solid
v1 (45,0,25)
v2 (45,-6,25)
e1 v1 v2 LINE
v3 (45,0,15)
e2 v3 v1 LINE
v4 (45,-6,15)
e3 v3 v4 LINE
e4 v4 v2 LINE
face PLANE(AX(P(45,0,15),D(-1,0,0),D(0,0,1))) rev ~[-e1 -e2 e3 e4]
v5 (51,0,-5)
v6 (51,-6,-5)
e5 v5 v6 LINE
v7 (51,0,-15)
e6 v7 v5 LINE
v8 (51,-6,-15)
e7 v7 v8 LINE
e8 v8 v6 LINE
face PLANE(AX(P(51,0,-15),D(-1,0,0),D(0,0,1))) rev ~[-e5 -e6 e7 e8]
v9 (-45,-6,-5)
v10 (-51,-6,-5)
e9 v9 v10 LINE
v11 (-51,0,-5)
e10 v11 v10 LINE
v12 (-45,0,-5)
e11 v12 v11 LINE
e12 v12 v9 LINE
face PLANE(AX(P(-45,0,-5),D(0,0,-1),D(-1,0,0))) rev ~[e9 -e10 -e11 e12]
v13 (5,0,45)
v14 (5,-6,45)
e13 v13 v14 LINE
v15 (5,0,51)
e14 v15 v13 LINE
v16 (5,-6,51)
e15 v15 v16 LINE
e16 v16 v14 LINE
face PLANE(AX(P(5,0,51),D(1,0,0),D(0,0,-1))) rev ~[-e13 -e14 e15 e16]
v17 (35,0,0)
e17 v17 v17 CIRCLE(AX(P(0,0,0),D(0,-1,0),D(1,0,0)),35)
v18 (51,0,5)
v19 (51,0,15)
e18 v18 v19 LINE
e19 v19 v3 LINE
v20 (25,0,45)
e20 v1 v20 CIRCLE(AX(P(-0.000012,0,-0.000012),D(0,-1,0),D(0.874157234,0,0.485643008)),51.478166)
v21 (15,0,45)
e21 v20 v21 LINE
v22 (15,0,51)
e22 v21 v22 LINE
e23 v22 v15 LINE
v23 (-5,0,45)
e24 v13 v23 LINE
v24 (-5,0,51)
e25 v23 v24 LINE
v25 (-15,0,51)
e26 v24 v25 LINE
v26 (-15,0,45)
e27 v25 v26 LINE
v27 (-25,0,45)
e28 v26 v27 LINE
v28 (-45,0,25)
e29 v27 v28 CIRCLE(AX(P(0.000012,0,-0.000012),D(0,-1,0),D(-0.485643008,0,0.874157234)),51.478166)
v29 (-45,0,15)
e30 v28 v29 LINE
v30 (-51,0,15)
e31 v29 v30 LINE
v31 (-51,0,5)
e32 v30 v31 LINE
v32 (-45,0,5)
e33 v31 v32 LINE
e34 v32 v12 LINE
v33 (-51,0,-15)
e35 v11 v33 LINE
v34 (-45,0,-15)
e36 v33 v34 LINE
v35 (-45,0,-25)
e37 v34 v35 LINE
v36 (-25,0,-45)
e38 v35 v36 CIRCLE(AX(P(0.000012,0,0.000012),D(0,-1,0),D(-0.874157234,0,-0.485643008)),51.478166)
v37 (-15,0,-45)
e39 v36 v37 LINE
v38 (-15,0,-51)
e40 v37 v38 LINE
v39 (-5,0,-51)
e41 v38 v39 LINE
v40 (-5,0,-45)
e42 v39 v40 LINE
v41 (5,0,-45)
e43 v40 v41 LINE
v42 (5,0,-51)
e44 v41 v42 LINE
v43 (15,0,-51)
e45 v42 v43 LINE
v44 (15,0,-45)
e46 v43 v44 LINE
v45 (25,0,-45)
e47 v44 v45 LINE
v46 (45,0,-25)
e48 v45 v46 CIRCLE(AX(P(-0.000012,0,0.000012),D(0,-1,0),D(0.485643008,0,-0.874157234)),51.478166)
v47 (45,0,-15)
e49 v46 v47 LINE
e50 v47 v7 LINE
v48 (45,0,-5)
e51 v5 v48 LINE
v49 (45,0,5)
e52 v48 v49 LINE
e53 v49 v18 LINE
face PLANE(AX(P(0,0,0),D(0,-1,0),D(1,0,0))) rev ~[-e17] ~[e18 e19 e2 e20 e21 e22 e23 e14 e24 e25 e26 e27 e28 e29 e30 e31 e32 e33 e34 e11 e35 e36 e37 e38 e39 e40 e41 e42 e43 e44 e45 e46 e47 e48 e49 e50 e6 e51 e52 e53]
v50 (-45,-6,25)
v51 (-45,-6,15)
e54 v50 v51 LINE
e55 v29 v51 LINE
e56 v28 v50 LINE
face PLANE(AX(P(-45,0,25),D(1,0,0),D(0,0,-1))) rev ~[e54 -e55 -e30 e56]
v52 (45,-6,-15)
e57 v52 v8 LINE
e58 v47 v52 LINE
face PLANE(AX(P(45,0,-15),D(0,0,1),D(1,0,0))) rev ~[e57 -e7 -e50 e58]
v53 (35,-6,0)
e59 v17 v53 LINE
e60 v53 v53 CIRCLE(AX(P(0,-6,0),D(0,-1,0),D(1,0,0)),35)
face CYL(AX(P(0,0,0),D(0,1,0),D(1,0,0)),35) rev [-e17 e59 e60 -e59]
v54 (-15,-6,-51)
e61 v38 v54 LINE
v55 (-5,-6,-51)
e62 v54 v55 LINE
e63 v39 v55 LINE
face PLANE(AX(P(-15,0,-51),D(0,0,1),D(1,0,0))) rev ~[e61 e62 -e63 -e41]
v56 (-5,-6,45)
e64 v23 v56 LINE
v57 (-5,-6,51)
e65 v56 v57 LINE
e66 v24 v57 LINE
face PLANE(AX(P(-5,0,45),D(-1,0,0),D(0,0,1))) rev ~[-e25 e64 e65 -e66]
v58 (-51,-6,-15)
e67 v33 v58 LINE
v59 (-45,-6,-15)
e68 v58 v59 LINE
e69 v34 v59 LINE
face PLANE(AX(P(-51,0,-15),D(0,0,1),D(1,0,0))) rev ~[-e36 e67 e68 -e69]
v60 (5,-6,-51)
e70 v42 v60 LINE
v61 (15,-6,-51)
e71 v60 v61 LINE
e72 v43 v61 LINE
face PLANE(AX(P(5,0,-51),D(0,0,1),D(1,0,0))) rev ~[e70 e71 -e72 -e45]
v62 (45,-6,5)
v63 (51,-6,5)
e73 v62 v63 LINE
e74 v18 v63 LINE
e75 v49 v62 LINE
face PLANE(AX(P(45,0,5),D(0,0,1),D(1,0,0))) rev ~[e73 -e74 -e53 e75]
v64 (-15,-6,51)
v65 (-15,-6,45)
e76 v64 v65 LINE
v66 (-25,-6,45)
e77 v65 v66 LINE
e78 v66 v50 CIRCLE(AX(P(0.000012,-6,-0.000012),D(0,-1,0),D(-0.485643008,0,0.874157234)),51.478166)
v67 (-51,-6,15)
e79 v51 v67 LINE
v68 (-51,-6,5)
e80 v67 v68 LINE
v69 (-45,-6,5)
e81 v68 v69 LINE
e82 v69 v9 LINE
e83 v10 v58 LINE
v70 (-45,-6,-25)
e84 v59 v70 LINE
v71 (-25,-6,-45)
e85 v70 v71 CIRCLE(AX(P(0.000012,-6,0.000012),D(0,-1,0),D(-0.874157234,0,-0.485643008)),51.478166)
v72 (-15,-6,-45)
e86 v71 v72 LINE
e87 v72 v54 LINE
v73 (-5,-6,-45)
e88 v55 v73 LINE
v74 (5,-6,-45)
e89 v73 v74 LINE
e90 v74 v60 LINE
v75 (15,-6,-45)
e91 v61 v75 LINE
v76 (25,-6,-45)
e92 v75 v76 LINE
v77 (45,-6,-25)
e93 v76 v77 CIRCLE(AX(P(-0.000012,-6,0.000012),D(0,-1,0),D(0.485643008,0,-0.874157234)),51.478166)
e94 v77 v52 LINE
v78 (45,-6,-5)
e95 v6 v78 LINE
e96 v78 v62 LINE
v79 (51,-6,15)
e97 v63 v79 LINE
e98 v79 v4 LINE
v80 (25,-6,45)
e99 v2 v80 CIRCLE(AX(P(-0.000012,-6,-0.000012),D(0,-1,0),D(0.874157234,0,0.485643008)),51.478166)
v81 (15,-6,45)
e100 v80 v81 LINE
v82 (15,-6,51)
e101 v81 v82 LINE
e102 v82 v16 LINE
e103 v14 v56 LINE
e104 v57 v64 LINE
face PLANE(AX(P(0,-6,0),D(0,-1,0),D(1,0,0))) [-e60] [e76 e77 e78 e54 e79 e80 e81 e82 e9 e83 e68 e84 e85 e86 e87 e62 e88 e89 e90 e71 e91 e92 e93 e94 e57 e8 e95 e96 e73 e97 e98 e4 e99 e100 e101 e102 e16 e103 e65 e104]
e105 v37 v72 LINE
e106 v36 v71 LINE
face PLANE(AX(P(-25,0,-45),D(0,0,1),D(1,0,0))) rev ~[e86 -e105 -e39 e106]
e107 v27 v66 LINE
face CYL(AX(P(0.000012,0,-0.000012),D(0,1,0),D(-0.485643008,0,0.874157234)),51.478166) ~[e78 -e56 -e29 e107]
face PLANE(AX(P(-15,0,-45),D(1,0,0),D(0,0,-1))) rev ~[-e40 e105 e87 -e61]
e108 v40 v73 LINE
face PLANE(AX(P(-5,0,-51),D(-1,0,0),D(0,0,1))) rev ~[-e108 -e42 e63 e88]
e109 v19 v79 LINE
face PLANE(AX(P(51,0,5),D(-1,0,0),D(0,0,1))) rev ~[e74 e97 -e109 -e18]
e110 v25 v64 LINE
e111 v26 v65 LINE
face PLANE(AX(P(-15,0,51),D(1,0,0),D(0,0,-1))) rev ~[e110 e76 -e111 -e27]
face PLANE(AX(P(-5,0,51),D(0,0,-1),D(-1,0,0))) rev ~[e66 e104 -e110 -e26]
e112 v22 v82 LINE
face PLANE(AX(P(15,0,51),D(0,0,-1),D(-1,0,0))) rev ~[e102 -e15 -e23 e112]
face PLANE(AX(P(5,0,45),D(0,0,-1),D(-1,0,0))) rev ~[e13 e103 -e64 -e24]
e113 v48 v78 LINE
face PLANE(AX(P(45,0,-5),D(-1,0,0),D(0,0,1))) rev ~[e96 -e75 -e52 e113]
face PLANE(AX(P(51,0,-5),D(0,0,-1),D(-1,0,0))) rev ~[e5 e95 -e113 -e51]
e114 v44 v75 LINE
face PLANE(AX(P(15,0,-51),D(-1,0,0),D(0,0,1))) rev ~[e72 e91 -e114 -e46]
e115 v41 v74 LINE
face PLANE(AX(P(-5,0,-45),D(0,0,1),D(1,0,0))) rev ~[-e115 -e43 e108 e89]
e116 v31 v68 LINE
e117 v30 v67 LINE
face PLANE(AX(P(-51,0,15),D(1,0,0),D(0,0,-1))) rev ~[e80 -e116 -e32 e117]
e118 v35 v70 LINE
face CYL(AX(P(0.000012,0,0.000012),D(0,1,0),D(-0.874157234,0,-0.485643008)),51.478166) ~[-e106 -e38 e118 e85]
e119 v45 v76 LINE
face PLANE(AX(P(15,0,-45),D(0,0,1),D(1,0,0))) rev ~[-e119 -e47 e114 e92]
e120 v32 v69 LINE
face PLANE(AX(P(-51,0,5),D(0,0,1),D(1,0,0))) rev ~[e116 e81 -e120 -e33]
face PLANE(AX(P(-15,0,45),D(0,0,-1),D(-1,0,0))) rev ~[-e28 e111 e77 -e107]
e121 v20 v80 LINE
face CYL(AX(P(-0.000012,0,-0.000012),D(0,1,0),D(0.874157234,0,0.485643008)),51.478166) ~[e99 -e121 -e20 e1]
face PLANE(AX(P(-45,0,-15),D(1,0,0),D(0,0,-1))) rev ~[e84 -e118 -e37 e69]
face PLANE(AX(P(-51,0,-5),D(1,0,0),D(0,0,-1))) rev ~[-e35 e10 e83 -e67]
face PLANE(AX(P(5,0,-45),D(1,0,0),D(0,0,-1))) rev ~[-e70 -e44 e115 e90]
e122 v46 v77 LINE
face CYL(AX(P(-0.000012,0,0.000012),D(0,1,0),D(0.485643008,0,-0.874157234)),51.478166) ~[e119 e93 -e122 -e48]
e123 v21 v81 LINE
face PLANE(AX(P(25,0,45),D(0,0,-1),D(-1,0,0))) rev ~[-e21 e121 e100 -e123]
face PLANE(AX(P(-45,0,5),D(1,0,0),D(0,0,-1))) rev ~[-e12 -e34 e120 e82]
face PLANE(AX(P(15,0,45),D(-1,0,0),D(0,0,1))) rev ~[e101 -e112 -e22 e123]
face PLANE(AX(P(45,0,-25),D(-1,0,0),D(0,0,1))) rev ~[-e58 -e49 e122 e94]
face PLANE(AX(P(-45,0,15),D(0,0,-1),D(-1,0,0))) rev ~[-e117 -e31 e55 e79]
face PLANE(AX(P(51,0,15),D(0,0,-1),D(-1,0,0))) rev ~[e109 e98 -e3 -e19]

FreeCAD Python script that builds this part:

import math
import FreeCAD as App
import Part
import Sketcher

doc = App.newDocument("Part")
body = doc.addObject("PartDesign::Body", "Body")

# Sketch on XZ plane
sketch1 = body.newObject("Sketcher::SketchObject", "Sketch")
sketch1.AttachmentSupport = (doc.getObject("XZ_Plane"), [""])
sketch1.MapMode = "FlatFace"
sketch1.addGeometry([
    Part.LineSegment(App.Vector(15, -45, 0), App.Vector(25, -45, 0)),  # 0
    Part.ArcOfCircle(Part.Circle(App.Vector(-0.000012, 0.000012, 0), App.Vector(0, 0, 1), 51.478166), math.radians(-60.945391), math.radians(-29.054609)),  # 1
    Part.LineSegment(App.Vector(45, -25, 0), App.Vector(45, -15, 0)),  # 2
    Part.LineSegment(App.Vector(45, -15, 0), App.Vector(51, -15, 0)),  # 3
    Part.LineSegment(App.Vector(51, -15, 0), App.Vector(51, -5, 0)),  # 4
    Part.LineSegment(App.Vector(51, -5, 0), App.Vector(45, -5, 0)),  # 5
    Part.LineSegment(App.Vector(45, -5, 0), App.Vector(45, 5, 0)),  # 6
    Part.LineSegment(App.Vector(45, 5, 0), App.Vector(51, 5, 0)),  # 7
    Part.LineSegment(App.Vector(51, 5, 0), App.Vector(51, 15, 0)),  # 8
    Part.LineSegment(App.Vector(51, 15, 0), App.Vector(45, 15, 0)),  # 9
    Part.LineSegment(App.Vector(45, 15, 0), App.Vector(45, 25, 0)),  # 10
    Part.ArcOfCircle(Part.Circle(App.Vector(-0.000012, -0.000012, 0), App.Vector(0, 0, 1), 51.478166), math.radians(29.054609), math.radians(60.945391)),  # 11
    Part.LineSegment(App.Vector(25, 45, 0), App.Vector(15, 45, 0)),  # 12
    Part.LineSegment(App.Vector(15, 45, 0), App.Vector(15, 51, 0)),  # 13
    Part.LineSegment(App.Vector(15, 51, 0), App.Vector(5, 51, 0)),  # 14
    Part.LineSegment(App.Vector(5, 51, 0), App.Vector(5, 45, 0)),  # 15
    Part.LineSegment(App.Vector(5, 45, 0), App.Vector(-5, 45, 0)),  # 16
    Part.LineSegment(App.Vector(-5, 45, 0), App.Vector(-5, 51, 0)),  # 17
    Part.LineSegment(App.Vector(-5, 51, 0), App.Vector(-15, 51, 0)),  # 18
    Part.LineSegment(App.Vector(-15, 51, 0), App.Vector(-15, 45, 0)),  # 19
    Part.LineSegment(App.Vector(-15, 45, 0), App.Vector(-25, 45, 0)),  # 20
    Part.ArcOfCircle(Part.Circle(App.Vector(0.000012, -0.000012, 0), App.Vector(0, 0, 1), 51.478166), math.radians(119.054609), math.radians(150.945391)),  # 21
    Part.LineSegment(App.Vector(-45, 25, 0), App.Vector(-45, 15, 0)),  # 22
    Part.LineSegment(App.Vector(-45, 15, 0), App.Vector(-51, 15, 0)),  # 23
    Part.LineSegment(App.Vector(-51, 15, 0), App.Vector(-51, 5, 0)),  # 24
    Part.LineSegment(App.Vector(-51, 5, 0), App.Vector(-45, 5, 0)),  # 25
    Part.LineSegment(App.Vector(-45, 5, 0), App.Vector(-45, -5, 0)),  # 26
    Part.LineSegment(App.Vector(-45, -5, 0), App.Vector(-51, -5, 0)),  # 27
    Part.LineSegment(App.Vector(-51, -5, 0), App.Vector(-51, -15, 0)),  # 28
    Part.LineSegment(App.Vector(-51, -15, 0), App.Vector(-45, -15, 0)),  # 29
    Part.LineSegment(App.Vector(-45, -15, 0), App.Vector(-45, -25, 0)),  # 30
    Part.ArcOfCircle(Part.Circle(App.Vector(0.000012, 0.000012, 0), App.Vector(0, 0, 1), 51.478166), math.radians(-150.945391), math.radians(-119.054609)),  # 31
    Part.LineSegment(App.Vector(-25, -45, 0), App.Vector(-15, -45, 0)),  # 32
    Part.LineSegment(App.Vector(-15, -45, 0), App.Vector(-15, -51, 0)),  # 33
    Part.LineSegment(App.Vector(-15, -51, 0), App.Vector(-5, -51, 0)),  # 34
    Part.LineSegment(App.Vector(-5, -51, 0), App.Vector(-5, -45, 0)),  # 35
    Part.LineSegment(App.Vector(-5, -45, 0), App.Vector(5, -45, 0)),  # 36
    Part.LineSegment(App.Vector(5, -45, 0), App.Vector(5, -51, 0)),  # 37
    Part.LineSegment(App.Vector(5, -51, 0), App.Vector(15, -51, 0)),  # 38
    Part.LineSegment(App.Vector(15, -51, 0), App.Vector(15, -45, 0)),  # 39
    Part.Circle(App.Vector(0, 0, 0), App.Vector(0, 0, 1), 35),  # 40
], False)
sketch1.addConstraint([
    Sketcher.Constraint("Coincident", 0, 2, 1, 1),
    Sketcher.Constraint("Coincident", 1, 2, 2, 1),
    Sketcher.Constraint("Coincident", 2, 2, 3, 1),
    Sketcher.Constraint("Coincident", 3, 2, 4, 1),
    Sketcher.Constraint("Coincident", 4, 2, 5, 1),
    Sketcher.Constraint("Coincident", 5, 2, 6, 1),
    Sketcher.Constraint("Coincident", 6, 2, 7, 1),
    Sketcher.Constraint("Coincident", 7, 2, 8, 1),
    Sketcher.Constraint("Coincident", 8, 2, 9, 1),
    Sketcher.Constraint("Coincident", 9, 2, 10, 1),
    Sketcher.Constraint("Coincident", 10, 2, 11, 1),
    Sketcher.Constraint("Coincident", 11, 2, 12, 1),
    Sketcher.Constraint("Coincident", 12, 2, 13, 1),
    Sketcher.Constraint("Coincident", 13, 2, 14, 1),
    Sketcher.Constraint("Coincident", 14, 2, 15, 1),
    Sketcher.Constraint("Coincident", 15, 2, 16, 1),
    Sketcher.Constraint("Coincident", 16, 2, 17, 1),
    Sketcher.Constraint("Coincident", 17, 2, 18, 1),
    Sketcher.Constraint("Coincident", 18, 2, 19, 1),
    Sketcher.Constraint("Coincident", 19, 2, 20, 1),
    Sketcher.Constraint("Coincident", 20, 2, 21, 1),
    Sketcher.Constraint("Coincident", 21, 2, 22, 1),
    Sketcher.Constraint("Coincident", 22, 2, 23, 1),
    Sketcher.Constraint("Coincident", 23, 2, 24, 1),
    Sketcher.Constraint("Coincident", 24, 2, 25, 1),
    Sketcher.Constraint("Coincident", 25, 2, 26, 1),
    Sketcher.Constraint("Coincident", 26, 2, 27, 1),
    Sketcher.Constraint("Coincident", 27, 2, 28, 1),
    Sketcher.Constraint("Coincident", 28, 2, 29, 1),
    Sketcher.Constraint("Coincident", 29, 2, 30, 1),
    Sketcher.Constraint("Coincident", 30, 2, 31, 1),
    Sketcher.Constraint("Coincident", 31, 2, 32, 1),
    Sketcher.Constraint("Coincident", 32, 2, 33, 1),
    Sketcher.Constraint("Coincident", 33, 2, 34, 1),
    Sketcher.Constraint("Coincident", 34, 2, 35, 1),
    Sketcher.Constraint("Coincident", 35, 2, 36, 1),
    Sketcher.Constraint("Coincident", 36, 2, 37, 1),
    Sketcher.Constraint("Coincident", 37, 2, 38, 1),
    Sketcher.Constraint("Coincident", 38, 2, 39, 1),
    Sketcher.Constraint("Coincident", 39, 2, 0, 1),
    Sketcher.Constraint("Horizontal", 0),
    Sketcher.Constraint("Vertical", 2),
    Sketcher.Constraint("Horizontal", 3),
    Sketcher.Constraint("Vertical", 4),
    Sketcher.Constraint("Horizontal", 5),
    Sketcher.Constraint("Vertical", 6),
    Sketcher.Constraint("Horizontal", 7),
    Sketcher.Constraint("Vertical", 8),
    Sketcher.Constraint("Horizontal", 9),
    Sketcher.Constraint("Vertical", 10),
    Sketcher.Constraint("Horizontal", 12),
    Sketcher.Constraint("Vertical", 13),
    Sketcher.Constraint("Horizontal", 14),
    Sketcher.Constraint("Vertical", 15),
    Sketcher.Constraint("Horizontal", 16),
    Sketcher.Constraint("Vertical", 17),
    Sketcher.Constraint("Horizontal", 18),
    Sketcher.Constraint("Vertical", 19),
    Sketcher.Constraint("Horizontal", 20),
    Sketcher.Constraint("Vertical", 22),
    Sketcher.Constraint("Horizontal", 23),
    Sketcher.Constraint("Vertical", 24),
    Sketcher.Constraint("Horizontal", 25),
    Sketcher.Constraint("Vertical", 26),
    Sketcher.Constraint("Horizontal", 27),
    Sketcher.Constraint("Vertical", 28),
    Sketcher.Constraint("Horizontal", 29),
    Sketcher.Constraint("Vertical", 30),
    Sketcher.Constraint("Horizontal", 32),
    Sketcher.Constraint("Vertical", 33),
    Sketcher.Constraint("Horizontal", 34),
    Sketcher.Constraint("Vertical", 35),
    Sketcher.Constraint("Horizontal", 36),
    Sketcher.Constraint("Vertical", 37),
    Sketcher.Constraint("Horizontal", 38),
    Sketcher.Constraint("Vertical", 39),
    Sketcher.Constraint("Coincident", 40, 3, -1, 1),
    Sketcher.Constraint("Equal", 1, 11),
    Sketcher.Constraint("Equal", 11, 21),
    Sketcher.Constraint("Equal", 21, 31),
    Sketcher.Constraint("Symmetric", 1, 3, 21, 3, -1, 1),
    Sketcher.Constraint("Symmetric", 11, 3, 31, 3, -1, 1),
    Sketcher.Constraint("Symmetric", 2, 2, 22, 2, -1, 1),
    Sketcher.Constraint("Symmetric", 4, 2, 24, 2, -1, 1),
    Sketcher.Constraint("Symmetric", 6, 2, 26, 2, -1, 1),
    Sketcher.Constraint("Symmetric", 8, 2, 28, 2, -1, 1),
    Sketcher.Constraint("Symmetric", 12, 2, 32, 2, -1, 1),
    Sketcher.Constraint("Symmetric", 14, 2, 34, 2, -1, 1),
    Sketcher.Constraint("Symmetric", 16, 2, 36, 2, -1, 1),
    Sketcher.Constraint("Symmetric", 18, 2, 38, 2, -1, 1),
    Sketcher.Constraint("Symmetric", 11, 3, 21, 3, -2),
    Sketcher.Constraint("Symmetric", 14, 2, 17, 2, -2),
    Sketcher.Constraint("Symmetric", 12, 2, 19, 2, -2),
    Sketcher.Constraint("Symmetric", 9, 2, 22, 2, -2),
    Sketcher.Constraint("Symmetric", 7, 2, 24, 2, -2),
    Sketcher.Constraint("Horizontal", 12, 2, 15, 2),
    Sketcher.Constraint("Horizontal", 1, 2, 30, 2),
    Sketcher.Constraint("Horizontal", 0, 2, 31, 2),
    Sketcher.Constraint("Vertical", 2, 2, 5, 2),
    Sketcher.Constraint("Equal", 12, 14),
    Sketcher.Constraint("Equal", 14, 16),
    Sketcher.Constraint("Equal", 38, 2),
    Sketcher.Constraint("Equal", 2, 4),
    Sketcher.Constraint("Equal", 4, 6),
    Sketcher.Constraint("Equal", 29, 13),
    Sketcher.Constraint("Diameter", 40, 70.0),
    Sketcher.Constraint("DistanceX", 0, 1, 0, 2, 10.0),
    Sketcher.Constraint("DistanceX", 3, 1, 3, 2, 6.0),
    Sketcher.Constraint("DistanceY", 0, 2, -1, 1, 45.0),
    Sketcher.Constraint("DistanceX", -1, 1, 1, 2, 45.0),
    Sketcher.Constraint("Radius", 1, 51.478166),
])
pad1 = body.newObject("PartDesign::Pad", "Pad")
pad1.Profile = sketch1
pad1.Length = 6

doc.recompute()
